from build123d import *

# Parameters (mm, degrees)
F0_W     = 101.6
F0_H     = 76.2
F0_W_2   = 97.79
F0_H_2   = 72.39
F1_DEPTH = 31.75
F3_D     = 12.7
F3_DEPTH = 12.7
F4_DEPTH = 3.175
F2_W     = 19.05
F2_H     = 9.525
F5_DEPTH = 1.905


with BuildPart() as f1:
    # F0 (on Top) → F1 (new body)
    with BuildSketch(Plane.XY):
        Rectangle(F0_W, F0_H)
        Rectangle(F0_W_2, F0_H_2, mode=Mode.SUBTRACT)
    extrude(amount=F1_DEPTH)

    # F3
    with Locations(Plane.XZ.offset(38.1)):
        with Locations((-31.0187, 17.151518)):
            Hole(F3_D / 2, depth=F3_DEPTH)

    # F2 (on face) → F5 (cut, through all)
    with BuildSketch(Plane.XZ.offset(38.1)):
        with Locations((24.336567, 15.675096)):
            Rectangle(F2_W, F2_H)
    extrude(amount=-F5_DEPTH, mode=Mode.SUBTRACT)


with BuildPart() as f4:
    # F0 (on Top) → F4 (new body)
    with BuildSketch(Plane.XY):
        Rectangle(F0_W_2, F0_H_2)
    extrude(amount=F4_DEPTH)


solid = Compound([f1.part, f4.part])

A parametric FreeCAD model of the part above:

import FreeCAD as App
import Part
import Sketcher
Q = App.Units.Quantity


def add_polygon(sketch, points):
    """Adds a closed chain of lines whose ends are joined by coincident constraints."""
    first, n = sketch.GeometryCount, len(points)
    for a, b in zip(points, points[1:] + points[:1]):
        sketch.addGeometry(Part.LineSegment(App.Vector(*a, 0), App.Vector(*b, 0)), False)
    for i in range(n):
        sketch.addConstraint(Sketcher.Constraint("Coincident", first + i, 2, first + (i + 1) % n, 1))

doc = App.newDocument("Part")
body = doc.addObject("PartDesign::Body", "Body")

# Sketch on XY plane
sketch1 = doc.addObject("Sketcher::SketchObject", "Sketch")
body.addObject(sketch1)
sketch1.AttachmentSupport = (doc.XY_Plane, [""])
sketch1.MapMode = "FlatFace"
add_polygon(sketch1, [(-51, 38), (-51, -38), (51, -38), (51, 38)])  # lines 0-3
add_polygon(sketch1, [(49, -36), (-49, -36), (-49, 36), (49, 36)])  # lines 4-7
sketch1.addConstraint(Sketcher.Constraint("Vertical", 0))
sketch1.addConstraint(Sketcher.Constraint("Horizontal", 1))
sketch1.addConstraint(Sketcher.Constraint("Vertical", 2))
sketch1.addConstraint(Sketcher.Constraint("Horizontal", 3))
sketch1.addConstraint(Sketcher.Constraint("Horizontal", 4))
sketch1.addConstraint(Sketcher.Constraint("Vertical", 5))
sketch1.addConstraint(Sketcher.Constraint("Horizontal", 6))
sketch1.addConstraint(Sketcher.Constraint("Vertical", 7))
sketch1.addConstraint(Sketcher.Constraint("Symmetric", 0, 2, 2, 2, -1, 1))
sketch1.addConstraint(Sketcher.Constraint("Symmetric", 4, 2, 6, 2, -1, 1))
sketch1.addConstraint(Sketcher.Constraint("DistanceX", 1, 1, 1, 2, Q("4 in")))
sketch1.addConstraint(Sketcher.Constraint("DistanceY", 0, 2, 0, 1, Q("3 in")))
sketch1.addConstraint(Sketcher.Constraint("DistanceX", 4, 2, 4, 1, Q("3.85 in")))
sketch1.addConstraint(Sketcher.Constraint("DistanceY", 5, 1, 5, 2, Q("2.85 in")))
pad1 = doc.addObject("PartDesign::Pad", "Pad")
body.addObject(pad1)
pad1.Profile = sketch1
pad1.Length = Q("1.25 in")

# Sketch on XZ plane
sketch2 = doc.addObject("Sketcher::SketchObject", "Sketch001")
body.addObject(sketch2)
sketch2.AttachmentSupport = (doc.XZ_Plane, [""])
sketch2.MapMode = "FlatFace"
sketch2.AttachmentOffset = App.Placement(App.Vector(0, 0, 1.5 * 25.4), App.Rotation())
sketch2.addGeometry(Part.Circle(App.Vector(-31, 17, 0), App.Vector(0, 0, 1), 6), False)
sketch2.addConstraint(Sketcher.Constraint("Diameter", 0, Q("0.5 in")))
sketch2.addConstraint(Sketcher.Constraint("DistanceX", 0, 3, -1, 1, 31.0187))
sketch2.addConstraint(Sketcher.Constraint("DistanceY", -1, 1, 0, 3, 17.151518))
doc.recompute()
hole = doc.addObject("PartDesign::Hole", "Hole")
body.addObject(hole)
hole.Profile = sketch2
hole.ThreadType = "None"
hole.Diameter = Q("0.5 in")
hole.DepthType = "Dimension"
hole.Depth = Q("0.5 in")
hole.DrillPoint = "Flat"

# Sketch on XZ plane
sketch3 = doc.addObject("Sketcher::SketchObject", "Sketch002")
body.addObject(sketch3)
sketch3.AttachmentSupport = (doc.XZ_Plane, [""])
sketch3.MapMode = "FlatFace"
sketch3.AttachmentOffset = App.Placement(App.Vector(0, 0, 1.5 * 25.4), App.Rotation())
add_polygon(sketch3, [(15, 20), (15, 11), (34, 11), (34, 20)])  # lines 0-3
sketch3.addConstraint(Sketcher.Constraint("Vertical", 0))
sketch3.addConstraint(Sketcher.Constraint("Horizontal", 1))
sketch3.addConstraint(Sketcher.Constraint("Vertical", 2))
sketch3.addConstraint(Sketcher.Constraint("Horizontal", 3))
sketch3.addConstraint(Sketcher.Constraint("DistanceX", 1, 1, 1, 2, Q("0.75 in")))
sketch3.addConstraint(Sketcher.Constraint("DistanceY", 0, 2, 0, 1, Q("0.375 in")))
sketch3.addConstraint(Sketcher.Constraint("DistanceX", -1, 1, 0, 2, 14.811567))
sketch3.addConstraint(Sketcher.Constraint("DistanceY", -1, 1, 0, 2, 10.912596))
pocket1 = doc.addObject("PartDesign::Pocket", "Pocket")
body.addObject(pocket1)
pocket1.Profile = sketch3
pocket1.Length = Q("0.075 in")
body2 = doc.addObject("PartDesign::Body", "Body001")

# Sketch on XY plane
sketch4 = doc.addObject("Sketcher::SketchObject", "Sketch003")
body2.addObject(sketch4)
sketch4.AttachmentSupport = (doc.getObject("XY_Plane001"), [""])
sketch4.MapMode = "FlatFace"
add_polygon(sketch4, [(-49, 36), (-49, -36), (49, -36), (49, 36)])  # lines 0-3
sketch4.addConstraint(Sketcher.Constraint("Vertical", 0))
sketch4.addConstraint(Sketcher.Constraint("Horizontal", 1))
sketch4.addConstraint(Sketcher.Constraint("Vertical", 2))
sketch4.addConstraint(Sketcher.Constraint("Horizontal", 3))
sketch4.addConstraint(Sketcher.Constraint("Symmetric", 0, 2, 2, 2, -1, 1))
sketch4.addConstraint(Sketcher.Constraint("DistanceX", 1, 1, 1, 2, Q("3.85 in")))
sketch4.addConstraint(Sketcher.Constraint("DistanceY", 0, 2, 0, 1, Q("2.85 in")))
pad2 = doc.addObject("PartDesign::Pad", "Pad001")
body2.addObject(pad2)
pad2.Profile = sketch4
pad2.Length = Q("0.125 in")

doc.recompute()
